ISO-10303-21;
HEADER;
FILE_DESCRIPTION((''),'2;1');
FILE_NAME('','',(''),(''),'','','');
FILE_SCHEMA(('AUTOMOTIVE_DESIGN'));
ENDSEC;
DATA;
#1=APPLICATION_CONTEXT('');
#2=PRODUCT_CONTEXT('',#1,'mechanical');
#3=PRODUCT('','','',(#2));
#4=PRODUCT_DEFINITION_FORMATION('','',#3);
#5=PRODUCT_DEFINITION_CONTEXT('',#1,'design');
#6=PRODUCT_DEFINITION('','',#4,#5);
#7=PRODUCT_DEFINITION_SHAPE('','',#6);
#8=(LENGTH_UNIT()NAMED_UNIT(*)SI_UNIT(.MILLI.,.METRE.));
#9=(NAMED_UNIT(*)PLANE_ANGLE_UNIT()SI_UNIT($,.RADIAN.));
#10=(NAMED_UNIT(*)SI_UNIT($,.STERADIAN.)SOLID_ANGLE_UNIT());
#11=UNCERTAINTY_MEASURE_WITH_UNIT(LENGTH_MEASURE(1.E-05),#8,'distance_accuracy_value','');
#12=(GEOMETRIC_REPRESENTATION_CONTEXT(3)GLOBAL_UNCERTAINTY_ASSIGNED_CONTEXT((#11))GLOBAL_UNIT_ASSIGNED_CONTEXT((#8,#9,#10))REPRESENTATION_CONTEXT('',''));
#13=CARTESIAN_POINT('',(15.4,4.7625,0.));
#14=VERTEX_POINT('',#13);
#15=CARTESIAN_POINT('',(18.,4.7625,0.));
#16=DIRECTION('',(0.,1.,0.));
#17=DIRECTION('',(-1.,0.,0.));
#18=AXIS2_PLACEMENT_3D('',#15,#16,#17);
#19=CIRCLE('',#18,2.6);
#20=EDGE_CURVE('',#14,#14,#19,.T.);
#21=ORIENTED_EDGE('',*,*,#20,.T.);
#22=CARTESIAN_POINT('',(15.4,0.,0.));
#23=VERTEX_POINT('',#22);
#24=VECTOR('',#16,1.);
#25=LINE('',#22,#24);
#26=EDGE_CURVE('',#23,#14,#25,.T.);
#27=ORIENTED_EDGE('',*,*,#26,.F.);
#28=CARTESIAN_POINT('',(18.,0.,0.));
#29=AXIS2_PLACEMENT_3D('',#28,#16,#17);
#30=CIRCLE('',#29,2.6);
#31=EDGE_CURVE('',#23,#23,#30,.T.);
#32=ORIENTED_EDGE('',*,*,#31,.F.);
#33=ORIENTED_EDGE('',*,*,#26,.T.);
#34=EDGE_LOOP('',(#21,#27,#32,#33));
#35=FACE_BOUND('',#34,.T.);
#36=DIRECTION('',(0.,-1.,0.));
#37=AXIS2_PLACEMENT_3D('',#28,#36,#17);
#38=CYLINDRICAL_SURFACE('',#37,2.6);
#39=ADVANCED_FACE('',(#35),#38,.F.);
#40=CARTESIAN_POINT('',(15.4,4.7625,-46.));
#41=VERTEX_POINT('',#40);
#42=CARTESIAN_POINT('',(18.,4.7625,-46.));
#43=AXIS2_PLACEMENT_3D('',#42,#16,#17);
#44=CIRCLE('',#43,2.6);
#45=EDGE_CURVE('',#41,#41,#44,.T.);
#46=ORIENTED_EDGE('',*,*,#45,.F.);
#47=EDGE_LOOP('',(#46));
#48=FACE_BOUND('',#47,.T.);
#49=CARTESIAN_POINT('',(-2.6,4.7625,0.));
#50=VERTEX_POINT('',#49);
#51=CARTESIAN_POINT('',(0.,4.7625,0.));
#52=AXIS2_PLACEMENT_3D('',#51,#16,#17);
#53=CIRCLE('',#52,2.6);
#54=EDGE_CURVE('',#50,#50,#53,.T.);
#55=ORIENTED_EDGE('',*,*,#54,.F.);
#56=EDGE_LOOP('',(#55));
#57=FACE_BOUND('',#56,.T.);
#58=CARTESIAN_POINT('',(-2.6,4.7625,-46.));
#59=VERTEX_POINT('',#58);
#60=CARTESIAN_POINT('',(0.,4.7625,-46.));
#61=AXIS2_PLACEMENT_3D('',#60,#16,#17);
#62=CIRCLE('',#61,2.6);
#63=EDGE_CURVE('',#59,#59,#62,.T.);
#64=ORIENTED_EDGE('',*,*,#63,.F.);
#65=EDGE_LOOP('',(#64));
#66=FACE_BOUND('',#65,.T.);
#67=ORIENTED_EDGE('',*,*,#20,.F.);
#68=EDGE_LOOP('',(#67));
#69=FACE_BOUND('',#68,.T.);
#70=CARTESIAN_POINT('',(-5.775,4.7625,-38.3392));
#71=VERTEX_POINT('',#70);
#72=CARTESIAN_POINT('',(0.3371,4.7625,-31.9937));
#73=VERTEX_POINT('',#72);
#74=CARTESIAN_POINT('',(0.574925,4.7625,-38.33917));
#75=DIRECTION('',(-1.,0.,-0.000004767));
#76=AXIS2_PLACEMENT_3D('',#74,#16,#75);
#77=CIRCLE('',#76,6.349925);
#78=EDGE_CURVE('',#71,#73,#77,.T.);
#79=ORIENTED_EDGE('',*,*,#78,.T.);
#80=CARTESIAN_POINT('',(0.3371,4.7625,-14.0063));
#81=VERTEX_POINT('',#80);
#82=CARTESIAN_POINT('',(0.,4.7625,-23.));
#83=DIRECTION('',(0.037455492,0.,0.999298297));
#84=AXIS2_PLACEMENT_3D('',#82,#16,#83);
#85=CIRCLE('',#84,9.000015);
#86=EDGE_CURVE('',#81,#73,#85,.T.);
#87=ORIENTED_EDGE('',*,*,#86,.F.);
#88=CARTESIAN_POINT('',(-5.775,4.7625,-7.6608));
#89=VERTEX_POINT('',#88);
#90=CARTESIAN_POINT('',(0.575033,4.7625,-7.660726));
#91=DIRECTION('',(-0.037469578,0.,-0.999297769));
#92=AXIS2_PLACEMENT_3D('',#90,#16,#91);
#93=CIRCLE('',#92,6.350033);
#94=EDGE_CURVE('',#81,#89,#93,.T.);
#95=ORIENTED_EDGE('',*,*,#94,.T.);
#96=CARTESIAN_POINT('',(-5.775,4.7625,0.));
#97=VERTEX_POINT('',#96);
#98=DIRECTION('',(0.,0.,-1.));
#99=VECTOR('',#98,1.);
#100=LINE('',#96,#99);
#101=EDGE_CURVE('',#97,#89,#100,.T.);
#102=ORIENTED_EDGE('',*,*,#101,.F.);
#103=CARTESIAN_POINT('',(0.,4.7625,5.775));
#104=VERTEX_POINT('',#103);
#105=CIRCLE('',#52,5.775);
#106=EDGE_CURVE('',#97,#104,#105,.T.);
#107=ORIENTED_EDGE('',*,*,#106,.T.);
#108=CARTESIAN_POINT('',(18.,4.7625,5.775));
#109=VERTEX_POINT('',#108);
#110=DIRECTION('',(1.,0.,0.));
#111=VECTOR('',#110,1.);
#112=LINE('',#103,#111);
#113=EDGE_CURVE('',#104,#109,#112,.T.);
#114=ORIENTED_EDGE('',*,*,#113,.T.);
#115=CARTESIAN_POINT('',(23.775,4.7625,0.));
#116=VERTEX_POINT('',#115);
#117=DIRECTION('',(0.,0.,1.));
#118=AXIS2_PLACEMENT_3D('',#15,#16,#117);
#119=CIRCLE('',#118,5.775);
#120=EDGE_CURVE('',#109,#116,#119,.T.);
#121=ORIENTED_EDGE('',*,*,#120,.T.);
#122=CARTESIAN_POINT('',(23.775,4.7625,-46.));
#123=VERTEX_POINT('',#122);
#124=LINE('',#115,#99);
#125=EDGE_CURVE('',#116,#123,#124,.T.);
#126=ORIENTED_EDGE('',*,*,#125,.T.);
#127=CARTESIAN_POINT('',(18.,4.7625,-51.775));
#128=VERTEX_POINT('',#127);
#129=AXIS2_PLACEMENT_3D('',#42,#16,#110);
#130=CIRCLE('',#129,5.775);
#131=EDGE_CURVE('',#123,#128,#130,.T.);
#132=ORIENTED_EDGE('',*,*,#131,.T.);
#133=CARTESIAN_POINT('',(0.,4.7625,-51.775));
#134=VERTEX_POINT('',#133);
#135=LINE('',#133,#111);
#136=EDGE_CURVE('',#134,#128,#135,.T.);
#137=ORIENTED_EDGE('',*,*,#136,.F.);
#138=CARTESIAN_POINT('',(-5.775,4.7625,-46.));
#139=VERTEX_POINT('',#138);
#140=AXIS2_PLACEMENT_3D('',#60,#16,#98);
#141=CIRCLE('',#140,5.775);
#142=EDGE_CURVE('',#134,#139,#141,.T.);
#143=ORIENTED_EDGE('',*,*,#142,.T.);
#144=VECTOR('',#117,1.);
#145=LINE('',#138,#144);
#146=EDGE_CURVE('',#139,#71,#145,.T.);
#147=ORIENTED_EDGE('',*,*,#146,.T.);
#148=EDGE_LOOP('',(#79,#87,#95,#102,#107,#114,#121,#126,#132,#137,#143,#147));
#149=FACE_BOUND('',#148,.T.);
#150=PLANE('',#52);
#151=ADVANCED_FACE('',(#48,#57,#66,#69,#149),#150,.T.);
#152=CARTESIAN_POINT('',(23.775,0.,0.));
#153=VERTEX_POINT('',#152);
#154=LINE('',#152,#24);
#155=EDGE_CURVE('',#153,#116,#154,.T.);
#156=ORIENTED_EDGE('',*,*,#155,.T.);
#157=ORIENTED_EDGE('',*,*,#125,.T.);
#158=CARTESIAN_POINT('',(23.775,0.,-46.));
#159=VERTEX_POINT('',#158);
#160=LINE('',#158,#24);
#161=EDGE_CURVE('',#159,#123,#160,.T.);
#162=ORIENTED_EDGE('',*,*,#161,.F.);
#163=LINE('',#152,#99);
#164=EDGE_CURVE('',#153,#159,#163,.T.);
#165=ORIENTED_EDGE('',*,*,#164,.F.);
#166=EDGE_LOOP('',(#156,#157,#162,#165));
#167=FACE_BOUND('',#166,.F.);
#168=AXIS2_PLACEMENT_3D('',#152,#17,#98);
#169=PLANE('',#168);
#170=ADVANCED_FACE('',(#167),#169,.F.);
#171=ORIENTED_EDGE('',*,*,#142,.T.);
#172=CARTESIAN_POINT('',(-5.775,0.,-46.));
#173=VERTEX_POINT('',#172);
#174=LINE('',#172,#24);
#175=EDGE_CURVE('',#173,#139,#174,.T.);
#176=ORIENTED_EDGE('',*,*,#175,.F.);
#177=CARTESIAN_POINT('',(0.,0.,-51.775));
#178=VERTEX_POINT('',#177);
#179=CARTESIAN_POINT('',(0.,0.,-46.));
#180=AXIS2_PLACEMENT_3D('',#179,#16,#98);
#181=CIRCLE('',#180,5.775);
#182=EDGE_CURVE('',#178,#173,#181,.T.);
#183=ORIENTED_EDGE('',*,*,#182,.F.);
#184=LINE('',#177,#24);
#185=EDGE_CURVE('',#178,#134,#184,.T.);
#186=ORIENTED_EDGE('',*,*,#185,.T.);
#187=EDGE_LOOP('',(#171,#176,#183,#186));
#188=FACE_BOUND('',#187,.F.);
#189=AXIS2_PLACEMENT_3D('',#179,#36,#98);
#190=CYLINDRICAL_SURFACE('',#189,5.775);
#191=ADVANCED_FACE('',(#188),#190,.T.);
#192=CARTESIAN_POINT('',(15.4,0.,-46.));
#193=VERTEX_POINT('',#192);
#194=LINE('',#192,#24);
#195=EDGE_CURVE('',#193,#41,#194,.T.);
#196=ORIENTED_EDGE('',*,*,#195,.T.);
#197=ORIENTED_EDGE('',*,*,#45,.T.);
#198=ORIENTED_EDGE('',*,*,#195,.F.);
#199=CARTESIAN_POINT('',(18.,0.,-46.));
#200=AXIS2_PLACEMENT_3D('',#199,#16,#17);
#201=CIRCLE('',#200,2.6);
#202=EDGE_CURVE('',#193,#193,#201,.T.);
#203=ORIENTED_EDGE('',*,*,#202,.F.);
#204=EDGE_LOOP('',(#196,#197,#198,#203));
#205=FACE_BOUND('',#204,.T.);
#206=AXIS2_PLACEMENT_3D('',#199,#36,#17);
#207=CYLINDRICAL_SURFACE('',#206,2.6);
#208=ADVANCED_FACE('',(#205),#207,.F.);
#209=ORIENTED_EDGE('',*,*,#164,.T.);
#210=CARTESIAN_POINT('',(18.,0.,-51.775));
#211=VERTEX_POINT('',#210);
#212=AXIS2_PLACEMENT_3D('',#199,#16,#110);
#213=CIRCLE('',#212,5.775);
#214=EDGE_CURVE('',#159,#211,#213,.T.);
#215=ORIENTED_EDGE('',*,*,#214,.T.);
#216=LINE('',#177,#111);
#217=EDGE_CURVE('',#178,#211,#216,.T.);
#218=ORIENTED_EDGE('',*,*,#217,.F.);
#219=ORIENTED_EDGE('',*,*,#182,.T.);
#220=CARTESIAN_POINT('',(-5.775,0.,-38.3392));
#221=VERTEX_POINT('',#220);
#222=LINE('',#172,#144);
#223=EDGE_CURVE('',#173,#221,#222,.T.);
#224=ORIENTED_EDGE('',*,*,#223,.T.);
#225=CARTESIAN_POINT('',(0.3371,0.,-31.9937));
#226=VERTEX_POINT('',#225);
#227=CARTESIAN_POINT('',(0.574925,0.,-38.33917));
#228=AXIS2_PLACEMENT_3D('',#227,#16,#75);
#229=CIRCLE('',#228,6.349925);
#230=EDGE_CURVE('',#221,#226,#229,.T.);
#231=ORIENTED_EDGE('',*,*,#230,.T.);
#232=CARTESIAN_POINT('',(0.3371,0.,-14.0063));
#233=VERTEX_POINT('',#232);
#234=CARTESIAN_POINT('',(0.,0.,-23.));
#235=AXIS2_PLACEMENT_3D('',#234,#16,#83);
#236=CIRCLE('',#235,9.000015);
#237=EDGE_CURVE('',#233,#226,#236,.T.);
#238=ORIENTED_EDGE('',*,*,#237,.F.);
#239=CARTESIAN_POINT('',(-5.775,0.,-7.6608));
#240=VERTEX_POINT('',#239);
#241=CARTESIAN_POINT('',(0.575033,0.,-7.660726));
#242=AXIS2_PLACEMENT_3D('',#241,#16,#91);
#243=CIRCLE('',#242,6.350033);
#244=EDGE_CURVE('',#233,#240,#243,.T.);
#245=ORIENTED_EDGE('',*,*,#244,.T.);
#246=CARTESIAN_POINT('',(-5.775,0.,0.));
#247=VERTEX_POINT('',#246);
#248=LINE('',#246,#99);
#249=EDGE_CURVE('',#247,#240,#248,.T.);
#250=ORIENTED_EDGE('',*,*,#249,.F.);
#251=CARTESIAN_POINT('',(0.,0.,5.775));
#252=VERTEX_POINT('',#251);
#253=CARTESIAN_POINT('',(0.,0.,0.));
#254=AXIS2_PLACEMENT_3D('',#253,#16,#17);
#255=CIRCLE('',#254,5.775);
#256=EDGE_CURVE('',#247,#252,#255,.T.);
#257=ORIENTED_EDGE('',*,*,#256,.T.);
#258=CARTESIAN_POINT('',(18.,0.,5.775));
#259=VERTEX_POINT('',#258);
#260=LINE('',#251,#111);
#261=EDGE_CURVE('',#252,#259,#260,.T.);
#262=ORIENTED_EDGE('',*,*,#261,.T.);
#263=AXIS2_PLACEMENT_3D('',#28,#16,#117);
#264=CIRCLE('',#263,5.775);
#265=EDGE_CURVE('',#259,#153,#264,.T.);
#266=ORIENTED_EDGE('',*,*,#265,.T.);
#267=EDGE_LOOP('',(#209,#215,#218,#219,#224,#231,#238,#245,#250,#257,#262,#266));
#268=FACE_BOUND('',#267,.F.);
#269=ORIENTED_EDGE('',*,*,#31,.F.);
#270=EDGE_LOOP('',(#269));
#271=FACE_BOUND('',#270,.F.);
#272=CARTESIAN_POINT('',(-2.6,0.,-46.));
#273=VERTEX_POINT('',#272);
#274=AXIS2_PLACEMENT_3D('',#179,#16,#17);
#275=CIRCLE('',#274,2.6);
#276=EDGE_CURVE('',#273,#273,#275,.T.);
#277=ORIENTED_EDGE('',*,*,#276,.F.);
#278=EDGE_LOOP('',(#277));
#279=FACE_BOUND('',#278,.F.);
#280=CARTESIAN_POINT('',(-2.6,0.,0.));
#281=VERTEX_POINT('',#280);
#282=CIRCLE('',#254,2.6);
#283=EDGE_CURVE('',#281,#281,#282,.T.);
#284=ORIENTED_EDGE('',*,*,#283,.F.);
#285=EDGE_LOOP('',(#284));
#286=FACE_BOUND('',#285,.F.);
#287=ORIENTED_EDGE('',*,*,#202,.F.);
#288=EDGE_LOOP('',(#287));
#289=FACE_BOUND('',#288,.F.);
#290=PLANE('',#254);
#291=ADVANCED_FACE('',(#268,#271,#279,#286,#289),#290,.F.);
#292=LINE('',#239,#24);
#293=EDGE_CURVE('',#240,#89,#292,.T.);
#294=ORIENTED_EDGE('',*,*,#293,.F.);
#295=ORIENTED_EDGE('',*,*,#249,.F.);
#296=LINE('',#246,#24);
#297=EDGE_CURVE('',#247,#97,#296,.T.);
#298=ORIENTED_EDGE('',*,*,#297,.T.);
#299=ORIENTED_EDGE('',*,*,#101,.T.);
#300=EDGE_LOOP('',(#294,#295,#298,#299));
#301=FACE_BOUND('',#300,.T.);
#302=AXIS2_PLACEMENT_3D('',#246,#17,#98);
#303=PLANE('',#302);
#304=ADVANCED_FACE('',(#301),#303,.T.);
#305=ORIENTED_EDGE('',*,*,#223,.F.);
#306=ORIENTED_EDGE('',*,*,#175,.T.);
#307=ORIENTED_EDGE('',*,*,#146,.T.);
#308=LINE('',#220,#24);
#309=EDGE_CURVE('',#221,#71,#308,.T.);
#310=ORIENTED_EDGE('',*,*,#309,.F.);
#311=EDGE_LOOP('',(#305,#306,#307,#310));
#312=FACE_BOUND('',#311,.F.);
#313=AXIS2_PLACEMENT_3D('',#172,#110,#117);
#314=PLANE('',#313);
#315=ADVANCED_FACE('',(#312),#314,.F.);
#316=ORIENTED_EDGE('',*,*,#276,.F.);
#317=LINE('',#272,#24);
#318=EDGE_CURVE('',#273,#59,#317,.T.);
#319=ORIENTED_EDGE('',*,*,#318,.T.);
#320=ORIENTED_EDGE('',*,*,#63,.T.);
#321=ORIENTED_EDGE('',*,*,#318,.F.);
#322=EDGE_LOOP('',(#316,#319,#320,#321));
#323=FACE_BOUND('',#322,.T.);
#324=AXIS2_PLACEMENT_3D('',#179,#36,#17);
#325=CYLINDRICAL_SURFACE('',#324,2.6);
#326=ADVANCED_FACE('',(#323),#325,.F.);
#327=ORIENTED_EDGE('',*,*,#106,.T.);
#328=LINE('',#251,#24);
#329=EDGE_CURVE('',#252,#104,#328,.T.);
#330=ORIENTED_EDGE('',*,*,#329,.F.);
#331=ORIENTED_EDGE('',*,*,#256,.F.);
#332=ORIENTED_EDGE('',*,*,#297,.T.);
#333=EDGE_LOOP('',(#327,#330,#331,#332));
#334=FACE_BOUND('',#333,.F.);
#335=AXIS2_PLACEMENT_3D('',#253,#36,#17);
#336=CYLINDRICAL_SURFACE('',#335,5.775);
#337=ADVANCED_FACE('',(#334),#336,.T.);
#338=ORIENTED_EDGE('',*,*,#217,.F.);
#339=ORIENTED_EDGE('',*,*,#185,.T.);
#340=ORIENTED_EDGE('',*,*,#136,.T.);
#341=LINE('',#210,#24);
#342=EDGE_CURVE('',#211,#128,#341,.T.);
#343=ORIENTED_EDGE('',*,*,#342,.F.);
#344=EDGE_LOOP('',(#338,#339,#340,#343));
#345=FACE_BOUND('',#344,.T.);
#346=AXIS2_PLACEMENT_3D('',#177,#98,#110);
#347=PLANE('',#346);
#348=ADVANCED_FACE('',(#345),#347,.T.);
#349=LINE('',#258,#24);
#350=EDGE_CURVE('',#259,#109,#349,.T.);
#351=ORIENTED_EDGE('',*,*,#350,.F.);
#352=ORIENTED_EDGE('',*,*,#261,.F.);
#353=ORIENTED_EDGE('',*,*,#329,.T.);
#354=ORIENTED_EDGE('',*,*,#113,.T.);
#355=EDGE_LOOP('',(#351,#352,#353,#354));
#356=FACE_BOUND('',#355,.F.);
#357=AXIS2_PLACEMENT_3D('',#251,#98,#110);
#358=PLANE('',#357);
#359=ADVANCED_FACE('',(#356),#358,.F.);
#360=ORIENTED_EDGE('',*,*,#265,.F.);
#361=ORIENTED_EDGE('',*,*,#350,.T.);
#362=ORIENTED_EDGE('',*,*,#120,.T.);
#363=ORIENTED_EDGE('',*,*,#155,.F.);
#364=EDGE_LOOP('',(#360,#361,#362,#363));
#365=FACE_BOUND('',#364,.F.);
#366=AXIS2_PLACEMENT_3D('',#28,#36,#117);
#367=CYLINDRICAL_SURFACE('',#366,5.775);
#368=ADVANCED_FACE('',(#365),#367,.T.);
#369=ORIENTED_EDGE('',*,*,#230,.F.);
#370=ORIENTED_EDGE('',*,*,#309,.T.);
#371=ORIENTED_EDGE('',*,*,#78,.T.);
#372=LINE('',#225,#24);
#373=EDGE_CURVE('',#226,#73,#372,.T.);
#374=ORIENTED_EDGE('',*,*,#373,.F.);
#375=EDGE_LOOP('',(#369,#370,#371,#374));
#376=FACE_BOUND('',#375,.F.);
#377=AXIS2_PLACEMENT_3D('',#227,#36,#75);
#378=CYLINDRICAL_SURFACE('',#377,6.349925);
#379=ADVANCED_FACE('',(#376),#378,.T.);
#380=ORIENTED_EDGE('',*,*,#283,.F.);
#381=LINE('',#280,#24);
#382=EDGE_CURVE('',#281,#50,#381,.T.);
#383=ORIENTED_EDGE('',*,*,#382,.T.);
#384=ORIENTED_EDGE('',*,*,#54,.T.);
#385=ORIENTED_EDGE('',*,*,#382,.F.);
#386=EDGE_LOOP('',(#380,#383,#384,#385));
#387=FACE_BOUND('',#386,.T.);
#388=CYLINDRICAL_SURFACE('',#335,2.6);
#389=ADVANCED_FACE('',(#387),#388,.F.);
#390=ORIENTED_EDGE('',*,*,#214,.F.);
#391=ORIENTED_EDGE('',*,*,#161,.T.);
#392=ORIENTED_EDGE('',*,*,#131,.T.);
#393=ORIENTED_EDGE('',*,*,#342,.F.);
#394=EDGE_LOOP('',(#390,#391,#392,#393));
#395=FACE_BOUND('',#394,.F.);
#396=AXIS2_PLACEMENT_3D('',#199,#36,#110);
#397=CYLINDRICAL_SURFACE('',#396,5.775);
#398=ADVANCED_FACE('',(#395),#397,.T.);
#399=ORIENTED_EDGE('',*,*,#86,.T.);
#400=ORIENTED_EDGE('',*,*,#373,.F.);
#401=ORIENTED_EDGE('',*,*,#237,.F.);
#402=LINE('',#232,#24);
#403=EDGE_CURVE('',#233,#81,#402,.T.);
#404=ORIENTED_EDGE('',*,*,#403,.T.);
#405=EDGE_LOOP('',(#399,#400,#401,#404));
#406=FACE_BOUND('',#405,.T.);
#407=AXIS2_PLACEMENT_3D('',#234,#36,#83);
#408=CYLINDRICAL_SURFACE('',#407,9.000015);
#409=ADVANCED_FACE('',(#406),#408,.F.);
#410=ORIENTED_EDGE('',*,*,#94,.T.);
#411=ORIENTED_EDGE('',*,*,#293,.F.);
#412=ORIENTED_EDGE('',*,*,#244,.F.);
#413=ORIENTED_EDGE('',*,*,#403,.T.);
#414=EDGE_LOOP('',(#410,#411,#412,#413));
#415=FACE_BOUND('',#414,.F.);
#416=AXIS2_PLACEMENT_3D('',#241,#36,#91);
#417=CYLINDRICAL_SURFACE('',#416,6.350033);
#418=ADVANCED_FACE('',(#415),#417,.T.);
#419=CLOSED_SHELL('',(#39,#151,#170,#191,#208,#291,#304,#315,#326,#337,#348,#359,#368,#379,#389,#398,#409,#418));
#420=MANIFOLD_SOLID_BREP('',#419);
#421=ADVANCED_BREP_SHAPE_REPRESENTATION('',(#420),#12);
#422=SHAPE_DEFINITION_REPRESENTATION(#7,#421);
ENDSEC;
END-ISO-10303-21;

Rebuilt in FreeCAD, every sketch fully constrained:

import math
import FreeCAD as App
import Part
import Sketcher

doc = App.newDocument("Part")
body = doc.addObject("PartDesign::Body", "Body")

# Sketch on XZ plane
sketch1 = body.newObject("Sketcher::SketchObject", "Sketch")
sketch1.AttachmentSupport = (doc.getObject("XZ_Plane"), [""])
sketch1.MapMode = "FlatFace"
sketch1.addGeometry([
    Part.LineSegment(App.Vector(-5.8, -7.7, 0), App.Vector(-5.8, 0, 0)),  # 0
    Part.ArcOfCircle(Part.Circle(App.Vector(0, 0, 0), App.Vector(0, 0, 1), 5.8), math.radians(90), math.radians(180)),  # 1
    Part.LineSegment(App.Vector(0, 5.8, 0), App.Vector(18, 5.8, 0)),  # 2
    Part.ArcOfCircle(Part.Circle(App.Vector(18, 0, 0), App.Vector(0, 0, 1), 5.8), math.radians(0), math.radians(90)),  # 3
    Part.LineSegment(App.Vector(23.8, 0, 0), App.Vector(23.8, -46, 0)),  # 4
    Part.ArcOfCircle(Part.Circle(App.Vector(18, -46, 0), App.Vector(0, 0, 1), 5.8), math.radians(-90), math.radians(0)),  # 5
    Part.LineSegment(App.Vector(18, -51.8, 0), App.Vector(0, -51.8, 0)),  # 6
    Part.ArcOfCircle(Part.Circle(App.Vector(0, -46, 0), App.Vector(0, 0, 1), 5.8), math.radians(180), math.radians(270)),  # 7
    Part.LineSegment(App.Vector(-5.8, -46, 0), App.Vector(-5.8, -38.3, 0)),  # 8
    Part.ArcOfCircle(Part.Circle(App.Vector(0.6, -38.3, 0), App.Vector(0, 0, 1), 6.4), math.radians(92), math.radians(180)),  # 9
    Part.ArcOfCircle(Part.Circle(App.Vector(0, -23, 0), App.Vector(0, 0, 1), 9), math.radians(-88), math.radians(88)),  # 10
    Part.ArcOfCircle(Part.Circle(App.Vector(0.6, -7.7, 0), App.Vector(0, 0, 1), 6.3), math.radians(180), math.radians(268)),  # 11
    Part.Circle(App.Vector(18, -46, 0), App.Vector(0, 0, 1), 2.6),  # 12
    Part.Circle(App.Vector(0, -46, 0), App.Vector(0, 0, 1), 2.6),  # 13
    Part.Circle(App.Vector(18, 0, 0), App.Vector(0, 0, 1), 2.6),  # 14
    Part.Circle(App.Vector(0, 0, 0), App.Vector(0, 0, 1), 2.6),  # 15
], False)
sketch1.addConstraint([
    Sketcher.Constraint("Tangent", 0, 2, 1, 2),
    Sketcher.Constraint("Tangent", 1, 1, 2, 1),
    Sketcher.Constraint("Tangent", 2, 2, 3, 2),
    Sketcher.Constraint("Tangent", 3, 1, 4, 1),
    Sketcher.Constraint("Tangent", 4, 2, 5, 2),
    Sketcher.Constraint("Tangent", 5, 1, 6, 1),
    Sketcher.Constraint("Tangent", 6, 2, 7, 2),
    Sketcher.Constraint("Tangent", 7, 1, 8, 1),
    Sketcher.Constraint("Tangent", 8, 2, 9, 2),
    Sketcher.Constraint("Tangent", 9, 1, 10, 1),
    Sketcher.Constraint("Tangent", 10, 2, 11, 2),
    Sketcher.Constraint("Tangent", 11, 1, 0, 1),
    Sketcher.Constraint("Vertical", 0),
    Sketcher.Constraint("Horizontal", 2),
    Sketcher.Constraint("Vertical", 4),
    Sketcher.Constraint("Horizontal", 6),
    Sketcher.Constraint("Vertical", 8),
    Sketcher.Constraint("Coincident", 1, 3, -1, 1),
    Sketcher.Constraint("Coincident", 15, 3, -1, 1),
    Sketcher.Constraint("Coincident", 12, 3, 5, 3),
    Sketcher.Constraint("Coincident", 13, 3, 7, 3),
    Sketcher.Constraint("Coincident", 14, 3, 3, 3),
    Sketcher.Constraint("Equal", 1, 3),
    Sketcher.Constraint("Equal", 3, 5),
    Sketcher.Constraint("Equal", 5, 7),
    Sketcher.Constraint("Equal", 9, 11),
    Sketcher.Constraint("Equal", 12, 13),
    Sketcher.Constraint("Equal", 13, 14),
    Sketcher.Constraint("Equal", 14, 15),
    Sketcher.Constraint("PointOnObject", 7, 3, -2),
    Sketcher.Constraint("PointOnObject", 10, 3, -2),
    Sketcher.Constraint("Equal", 0, 8),
    Sketcher.Constraint("Radius", 10, 9.0),
    Sketcher.Constraint("Diameter", 12, 5.2),
    Sketcher.Constraint("DistanceX", 2, 1, 2, 2, 18.0),
    Sketcher.Constraint("DistanceY", 4, 2, 4, 1, 46.0),
    Sketcher.Constraint("Radius", 9, 6.35),
    Sketcher.Constraint("Radius", 1, 5.775),
])
pad1 = body.newObject("PartDesign::Pad", "Pad")
pad1.Profile = sketch1
pad1.Length = 4.7625
pad1.Reversed = True

doc.recompute()
